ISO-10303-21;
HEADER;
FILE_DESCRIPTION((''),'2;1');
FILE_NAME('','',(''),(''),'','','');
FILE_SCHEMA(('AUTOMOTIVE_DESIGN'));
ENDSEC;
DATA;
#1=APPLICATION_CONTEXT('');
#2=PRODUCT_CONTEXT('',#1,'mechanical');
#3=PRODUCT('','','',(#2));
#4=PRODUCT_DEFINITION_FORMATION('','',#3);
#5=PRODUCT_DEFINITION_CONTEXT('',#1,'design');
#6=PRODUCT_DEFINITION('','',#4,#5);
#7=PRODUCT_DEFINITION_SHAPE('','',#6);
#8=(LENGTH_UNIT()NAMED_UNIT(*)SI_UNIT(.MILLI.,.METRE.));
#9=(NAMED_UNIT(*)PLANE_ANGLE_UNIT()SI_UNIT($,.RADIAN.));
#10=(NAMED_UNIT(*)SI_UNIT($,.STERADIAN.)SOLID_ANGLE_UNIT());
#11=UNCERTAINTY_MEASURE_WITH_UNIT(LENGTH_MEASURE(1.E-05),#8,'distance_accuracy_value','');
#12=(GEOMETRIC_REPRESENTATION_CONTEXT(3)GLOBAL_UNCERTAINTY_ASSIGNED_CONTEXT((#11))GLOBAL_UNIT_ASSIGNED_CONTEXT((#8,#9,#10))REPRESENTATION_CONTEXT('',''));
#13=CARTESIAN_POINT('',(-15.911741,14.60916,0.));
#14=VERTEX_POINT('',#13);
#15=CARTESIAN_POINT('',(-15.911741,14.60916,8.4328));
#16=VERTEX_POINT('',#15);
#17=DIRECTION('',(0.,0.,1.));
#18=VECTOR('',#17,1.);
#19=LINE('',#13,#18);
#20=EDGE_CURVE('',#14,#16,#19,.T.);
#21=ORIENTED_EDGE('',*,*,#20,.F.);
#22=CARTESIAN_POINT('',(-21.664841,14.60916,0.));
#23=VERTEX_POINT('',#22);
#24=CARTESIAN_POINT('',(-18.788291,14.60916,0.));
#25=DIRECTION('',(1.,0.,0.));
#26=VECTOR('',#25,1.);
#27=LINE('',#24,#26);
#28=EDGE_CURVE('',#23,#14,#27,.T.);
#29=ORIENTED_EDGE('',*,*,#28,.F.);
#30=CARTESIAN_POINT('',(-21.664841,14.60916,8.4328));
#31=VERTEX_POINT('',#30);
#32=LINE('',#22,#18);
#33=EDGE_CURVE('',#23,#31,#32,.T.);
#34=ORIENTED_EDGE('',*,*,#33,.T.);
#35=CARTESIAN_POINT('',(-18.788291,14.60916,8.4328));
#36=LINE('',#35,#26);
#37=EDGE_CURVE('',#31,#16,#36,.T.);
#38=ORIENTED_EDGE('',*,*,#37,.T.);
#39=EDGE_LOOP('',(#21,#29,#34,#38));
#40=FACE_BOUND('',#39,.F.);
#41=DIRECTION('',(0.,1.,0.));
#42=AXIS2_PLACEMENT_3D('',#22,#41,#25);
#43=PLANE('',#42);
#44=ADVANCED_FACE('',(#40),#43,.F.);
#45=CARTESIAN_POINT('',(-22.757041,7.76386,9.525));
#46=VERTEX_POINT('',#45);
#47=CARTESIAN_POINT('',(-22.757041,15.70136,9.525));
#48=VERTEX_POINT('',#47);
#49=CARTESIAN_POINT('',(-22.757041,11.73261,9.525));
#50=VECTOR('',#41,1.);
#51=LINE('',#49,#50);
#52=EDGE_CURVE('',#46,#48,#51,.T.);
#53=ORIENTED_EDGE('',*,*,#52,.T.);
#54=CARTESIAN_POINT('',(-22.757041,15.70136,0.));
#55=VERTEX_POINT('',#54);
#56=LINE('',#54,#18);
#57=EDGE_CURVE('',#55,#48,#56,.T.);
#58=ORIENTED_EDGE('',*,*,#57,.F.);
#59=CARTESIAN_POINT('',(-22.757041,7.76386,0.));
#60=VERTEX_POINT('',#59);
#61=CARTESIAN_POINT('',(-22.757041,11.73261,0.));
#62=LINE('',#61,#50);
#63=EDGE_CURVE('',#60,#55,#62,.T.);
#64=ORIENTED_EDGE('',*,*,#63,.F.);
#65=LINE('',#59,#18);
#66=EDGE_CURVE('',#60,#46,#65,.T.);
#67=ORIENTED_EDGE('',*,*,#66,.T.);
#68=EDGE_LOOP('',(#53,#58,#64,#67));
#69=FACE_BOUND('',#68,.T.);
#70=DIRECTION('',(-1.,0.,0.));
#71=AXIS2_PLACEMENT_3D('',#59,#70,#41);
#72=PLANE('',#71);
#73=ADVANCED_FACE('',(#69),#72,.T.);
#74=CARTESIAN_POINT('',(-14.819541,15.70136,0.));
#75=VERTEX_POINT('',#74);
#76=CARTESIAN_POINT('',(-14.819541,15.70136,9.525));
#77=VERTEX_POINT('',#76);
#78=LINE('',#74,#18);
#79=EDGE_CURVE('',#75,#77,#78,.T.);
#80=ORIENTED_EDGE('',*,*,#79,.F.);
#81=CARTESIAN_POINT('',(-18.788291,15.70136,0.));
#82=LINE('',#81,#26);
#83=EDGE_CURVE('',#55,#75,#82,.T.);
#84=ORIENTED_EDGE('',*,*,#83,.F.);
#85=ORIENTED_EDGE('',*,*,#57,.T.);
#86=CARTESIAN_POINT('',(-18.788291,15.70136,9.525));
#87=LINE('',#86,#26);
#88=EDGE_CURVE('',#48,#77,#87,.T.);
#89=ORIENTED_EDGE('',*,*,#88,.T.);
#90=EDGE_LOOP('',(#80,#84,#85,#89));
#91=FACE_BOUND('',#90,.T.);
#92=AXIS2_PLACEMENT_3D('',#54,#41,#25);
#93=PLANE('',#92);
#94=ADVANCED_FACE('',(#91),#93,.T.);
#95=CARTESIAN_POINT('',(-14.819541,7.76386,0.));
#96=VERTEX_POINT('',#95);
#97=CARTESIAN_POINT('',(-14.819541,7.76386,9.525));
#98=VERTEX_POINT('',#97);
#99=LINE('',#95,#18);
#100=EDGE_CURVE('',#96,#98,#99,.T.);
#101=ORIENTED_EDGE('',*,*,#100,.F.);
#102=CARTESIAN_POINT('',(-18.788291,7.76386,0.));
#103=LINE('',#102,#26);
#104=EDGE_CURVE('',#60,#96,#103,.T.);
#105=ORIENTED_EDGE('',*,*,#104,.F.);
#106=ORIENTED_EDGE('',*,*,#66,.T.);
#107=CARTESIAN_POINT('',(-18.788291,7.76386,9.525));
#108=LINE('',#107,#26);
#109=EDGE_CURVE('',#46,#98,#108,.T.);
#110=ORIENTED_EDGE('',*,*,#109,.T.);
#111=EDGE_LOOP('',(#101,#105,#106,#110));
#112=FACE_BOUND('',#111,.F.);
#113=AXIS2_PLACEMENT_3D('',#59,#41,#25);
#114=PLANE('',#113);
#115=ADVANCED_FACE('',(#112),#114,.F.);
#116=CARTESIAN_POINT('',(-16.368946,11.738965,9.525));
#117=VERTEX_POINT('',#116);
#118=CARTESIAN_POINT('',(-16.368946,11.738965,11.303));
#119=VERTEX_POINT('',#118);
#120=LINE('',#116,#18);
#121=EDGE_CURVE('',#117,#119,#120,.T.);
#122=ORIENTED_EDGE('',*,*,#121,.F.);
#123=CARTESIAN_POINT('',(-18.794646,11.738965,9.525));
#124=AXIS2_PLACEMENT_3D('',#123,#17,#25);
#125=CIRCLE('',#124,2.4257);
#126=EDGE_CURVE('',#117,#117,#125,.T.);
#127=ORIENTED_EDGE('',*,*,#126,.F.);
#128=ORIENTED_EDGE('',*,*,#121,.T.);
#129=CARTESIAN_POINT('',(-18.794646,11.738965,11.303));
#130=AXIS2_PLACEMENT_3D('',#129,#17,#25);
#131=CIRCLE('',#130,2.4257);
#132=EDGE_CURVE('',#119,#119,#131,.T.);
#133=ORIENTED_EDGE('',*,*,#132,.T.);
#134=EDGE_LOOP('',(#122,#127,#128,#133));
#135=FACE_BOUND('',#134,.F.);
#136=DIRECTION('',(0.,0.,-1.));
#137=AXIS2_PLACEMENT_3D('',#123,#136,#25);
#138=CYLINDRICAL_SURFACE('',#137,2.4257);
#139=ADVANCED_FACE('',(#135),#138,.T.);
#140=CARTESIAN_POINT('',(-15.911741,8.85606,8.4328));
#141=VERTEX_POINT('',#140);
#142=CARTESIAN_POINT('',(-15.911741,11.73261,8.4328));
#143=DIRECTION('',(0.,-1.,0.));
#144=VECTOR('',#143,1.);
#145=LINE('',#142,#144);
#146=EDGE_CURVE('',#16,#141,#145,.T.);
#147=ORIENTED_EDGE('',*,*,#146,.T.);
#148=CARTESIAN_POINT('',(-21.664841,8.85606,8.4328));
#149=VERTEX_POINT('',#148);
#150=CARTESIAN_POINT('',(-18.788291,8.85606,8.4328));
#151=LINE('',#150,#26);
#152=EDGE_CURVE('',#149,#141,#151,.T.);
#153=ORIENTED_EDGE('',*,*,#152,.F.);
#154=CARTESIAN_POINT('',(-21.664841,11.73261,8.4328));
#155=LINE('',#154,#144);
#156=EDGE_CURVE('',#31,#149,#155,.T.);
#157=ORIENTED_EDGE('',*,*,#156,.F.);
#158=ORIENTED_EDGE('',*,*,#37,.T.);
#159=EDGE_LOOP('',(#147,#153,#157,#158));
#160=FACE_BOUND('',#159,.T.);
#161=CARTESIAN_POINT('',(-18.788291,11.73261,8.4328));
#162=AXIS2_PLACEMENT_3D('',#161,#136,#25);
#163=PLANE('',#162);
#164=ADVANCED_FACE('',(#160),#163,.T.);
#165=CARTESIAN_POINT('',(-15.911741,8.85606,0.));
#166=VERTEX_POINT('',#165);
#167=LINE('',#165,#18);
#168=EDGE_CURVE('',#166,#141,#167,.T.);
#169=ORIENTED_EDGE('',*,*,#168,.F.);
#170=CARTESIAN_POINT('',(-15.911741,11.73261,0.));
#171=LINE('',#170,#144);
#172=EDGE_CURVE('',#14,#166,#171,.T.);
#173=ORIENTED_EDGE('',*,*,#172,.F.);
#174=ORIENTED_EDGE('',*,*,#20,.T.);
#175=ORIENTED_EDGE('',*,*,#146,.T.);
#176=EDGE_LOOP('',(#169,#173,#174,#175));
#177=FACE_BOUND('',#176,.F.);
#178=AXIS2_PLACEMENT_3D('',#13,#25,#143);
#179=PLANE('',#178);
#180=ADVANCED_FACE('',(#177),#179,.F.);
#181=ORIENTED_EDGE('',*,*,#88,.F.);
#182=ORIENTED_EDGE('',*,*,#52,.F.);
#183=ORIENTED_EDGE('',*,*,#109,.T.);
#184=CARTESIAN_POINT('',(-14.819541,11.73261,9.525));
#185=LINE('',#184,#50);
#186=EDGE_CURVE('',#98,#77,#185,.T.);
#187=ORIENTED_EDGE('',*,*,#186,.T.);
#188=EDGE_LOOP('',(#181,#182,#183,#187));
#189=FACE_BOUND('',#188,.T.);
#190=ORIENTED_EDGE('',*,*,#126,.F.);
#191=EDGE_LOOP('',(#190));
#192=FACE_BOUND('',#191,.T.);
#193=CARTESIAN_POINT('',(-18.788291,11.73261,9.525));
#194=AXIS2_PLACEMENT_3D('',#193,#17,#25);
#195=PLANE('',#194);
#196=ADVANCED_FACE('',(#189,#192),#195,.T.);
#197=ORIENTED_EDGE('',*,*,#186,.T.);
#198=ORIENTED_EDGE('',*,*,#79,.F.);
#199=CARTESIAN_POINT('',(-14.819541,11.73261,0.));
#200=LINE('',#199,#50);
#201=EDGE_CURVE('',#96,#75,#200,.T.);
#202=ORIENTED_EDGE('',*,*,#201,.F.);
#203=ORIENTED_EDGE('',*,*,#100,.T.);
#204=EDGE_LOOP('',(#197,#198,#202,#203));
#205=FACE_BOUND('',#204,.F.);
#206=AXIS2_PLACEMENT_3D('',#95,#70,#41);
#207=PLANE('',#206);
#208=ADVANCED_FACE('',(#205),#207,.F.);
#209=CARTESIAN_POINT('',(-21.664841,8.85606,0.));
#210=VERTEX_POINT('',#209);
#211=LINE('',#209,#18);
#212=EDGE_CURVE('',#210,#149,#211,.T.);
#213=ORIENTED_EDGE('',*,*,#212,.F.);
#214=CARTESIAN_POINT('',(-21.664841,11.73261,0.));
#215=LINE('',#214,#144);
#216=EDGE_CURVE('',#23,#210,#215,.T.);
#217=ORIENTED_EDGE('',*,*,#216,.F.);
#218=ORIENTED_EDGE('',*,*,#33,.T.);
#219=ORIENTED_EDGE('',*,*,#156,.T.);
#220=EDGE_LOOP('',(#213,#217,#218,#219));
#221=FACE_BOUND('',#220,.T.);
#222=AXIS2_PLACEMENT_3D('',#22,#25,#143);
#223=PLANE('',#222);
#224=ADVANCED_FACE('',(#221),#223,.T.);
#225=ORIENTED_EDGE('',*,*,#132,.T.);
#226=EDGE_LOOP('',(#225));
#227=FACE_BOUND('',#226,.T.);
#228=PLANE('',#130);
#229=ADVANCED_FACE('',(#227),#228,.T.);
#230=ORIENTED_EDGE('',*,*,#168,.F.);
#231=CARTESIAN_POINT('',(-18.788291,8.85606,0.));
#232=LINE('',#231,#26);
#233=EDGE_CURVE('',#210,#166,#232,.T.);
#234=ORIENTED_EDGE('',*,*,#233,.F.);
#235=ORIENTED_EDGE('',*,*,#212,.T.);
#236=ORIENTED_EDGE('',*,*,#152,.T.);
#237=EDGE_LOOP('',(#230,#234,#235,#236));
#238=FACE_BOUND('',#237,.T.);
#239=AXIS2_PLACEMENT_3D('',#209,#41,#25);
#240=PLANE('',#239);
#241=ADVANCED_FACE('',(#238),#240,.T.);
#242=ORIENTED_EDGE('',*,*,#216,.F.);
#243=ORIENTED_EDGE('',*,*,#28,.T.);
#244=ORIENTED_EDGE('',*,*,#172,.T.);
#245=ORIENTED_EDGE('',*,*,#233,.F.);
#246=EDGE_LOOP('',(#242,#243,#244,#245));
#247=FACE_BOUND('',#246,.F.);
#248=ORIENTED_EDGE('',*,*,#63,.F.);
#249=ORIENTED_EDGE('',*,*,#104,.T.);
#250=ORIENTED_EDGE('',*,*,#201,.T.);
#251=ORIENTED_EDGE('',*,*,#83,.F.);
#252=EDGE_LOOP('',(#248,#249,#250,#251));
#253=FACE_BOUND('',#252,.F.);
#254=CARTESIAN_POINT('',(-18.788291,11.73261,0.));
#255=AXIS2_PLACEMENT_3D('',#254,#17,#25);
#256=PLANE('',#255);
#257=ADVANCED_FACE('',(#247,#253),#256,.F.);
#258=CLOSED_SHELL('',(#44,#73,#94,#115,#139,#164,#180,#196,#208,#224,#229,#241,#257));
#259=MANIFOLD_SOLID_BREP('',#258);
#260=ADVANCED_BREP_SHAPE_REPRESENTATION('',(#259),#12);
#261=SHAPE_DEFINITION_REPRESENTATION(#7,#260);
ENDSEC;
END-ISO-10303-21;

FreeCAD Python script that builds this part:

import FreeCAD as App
import Part
import Sketcher
Q = App.Units.Quantity


def add_polygon(sketch, points):
    """Adds a closed chain of lines whose ends are joined by coincident constraints."""
    first, n = sketch.GeometryCount, len(points)
    for a, b in zip(points, points[1:] + points[:1]):
        sketch.addGeometry(Part.LineSegment(App.Vector(*a, 0), App.Vector(*b, 0)), False)
    for i in range(n):
        sketch.addConstraint(Sketcher.Constraint("Coincident", first + i, 2, first + (i + 1) % n, 1))

doc = App.newDocument("Part")
body = doc.addObject("PartDesign::Body", "Body")

# Sketch on XY plane
sketch1 = body.newObject("Sketcher::SketchObject", "Sketch")
sketch1.AttachmentSupport = (doc.getObject("XY_Plane"), [""])
sketch1.MapMode = "FlatFace"
add_polygon(sketch1, [(-23, 16), (-23, 8), (-15, 8), (-15, 16)])  # lines 0-3
sketch1.addConstraint(Sketcher.Constraint("Vertical", 0))
sketch1.addConstraint(Sketcher.Constraint("Horizontal", 1))
sketch1.addConstraint(Sketcher.Constraint("Vertical", 2))
sketch1.addConstraint(Sketcher.Constraint("Horizontal", 3))
sketch1.addConstraint(Sketcher.Constraint("Equal", 3, 0))
sketch1.addConstraint(Sketcher.Constraint("DistanceX", 1, 1, 1, 2, Q("0.3125 in")))
sketch1.addConstraint(Sketcher.Constraint("DistanceX", 0, 2, -1, 1, Q("22.757041 mm")))
sketch1.addConstraint(Sketcher.Constraint("DistanceY", -1, 1, 0, 2, Q("7.76386 mm")))
pad1 = body.newObject("PartDesign::Pad", "Pad")
pad1.Profile = sketch1
pad1.Length = Q("0.375 in")

# Sketch on XY plane
sketch2 = body.newObject("Sketcher::SketchObject", "Sketch001")
sketch2.AttachmentSupport = (doc.getObject("XY_Plane"), [""])
sketch2.MapMode = "FlatFace"
sketch2.AttachmentOffset = App.Placement(App.Vector(0, 0, 0.375 * 25.4), App.Rotation())
sketch2.addGeometry(Part.Circle(App.Vector(-18.8, 11.7, 0), App.Vector(0, 0, 1), 2.4), False)
sketch2.addConstraint(Sketcher.Constraint("Diameter", 0, Q("0.191 in")))
sketch2.addConstraint(Sketcher.Constraint("DistanceX", 0, 3, -1, 1, Q("18.794646 mm")))
sketch2.addConstraint(Sketcher.Constraint("DistanceY", -1, 1, 0, 3, Q("11.738965 mm")))
pad2 = body.newObject("PartDesign::Pad", "Pad001")
pad2.Profile = sketch2
pad2.Length = Q("0.07 in")

# Sketch on XY plane
sketch3 = body.newObject("Sketcher::SketchObject", "Sketch002")
sketch3.AttachmentSupport = (doc.getObject("XY_Plane"), [""])
sketch3.MapMode = "FlatFace"
add_polygon(sketch3, [(-22, 9), (-22, 15), (-16, 15), (-16, 9)])  # lines 0-3
sketch3.addConstraint(Sketcher.Constraint("Vertical", 0))
sketch3.addConstraint(Sketcher.Constraint("Horizontal", 1))
sketch3.addConstraint(Sketcher.Constraint("Vertical", 2))
sketch3.addConstraint(Sketcher.Constraint("Horizontal", 3))
sketch3.addConstraint(Sketcher.Constraint("Equal", 3, 0))
sketch3.addConstraint(Sketcher.Constraint("DistanceX", 1, 1, 1, 2, Q("0.2265 in")))
sketch3.addConstraint(Sketcher.Constraint("DistanceX", 0, 2, -1, 1, Q("21.664841 mm")))
sketch3.addConstraint(Sketcher.Constraint("DistanceY", -1, 1, 0, 2, Q("14.60916 mm")))
pocket1 = body.newObject("PartDesign::Pocket", "Pocket")
pocket1.Profile = sketch3
pocket1.Length = Q("0.332 in")
pocket1.Reversed = True

doc.recompute()
